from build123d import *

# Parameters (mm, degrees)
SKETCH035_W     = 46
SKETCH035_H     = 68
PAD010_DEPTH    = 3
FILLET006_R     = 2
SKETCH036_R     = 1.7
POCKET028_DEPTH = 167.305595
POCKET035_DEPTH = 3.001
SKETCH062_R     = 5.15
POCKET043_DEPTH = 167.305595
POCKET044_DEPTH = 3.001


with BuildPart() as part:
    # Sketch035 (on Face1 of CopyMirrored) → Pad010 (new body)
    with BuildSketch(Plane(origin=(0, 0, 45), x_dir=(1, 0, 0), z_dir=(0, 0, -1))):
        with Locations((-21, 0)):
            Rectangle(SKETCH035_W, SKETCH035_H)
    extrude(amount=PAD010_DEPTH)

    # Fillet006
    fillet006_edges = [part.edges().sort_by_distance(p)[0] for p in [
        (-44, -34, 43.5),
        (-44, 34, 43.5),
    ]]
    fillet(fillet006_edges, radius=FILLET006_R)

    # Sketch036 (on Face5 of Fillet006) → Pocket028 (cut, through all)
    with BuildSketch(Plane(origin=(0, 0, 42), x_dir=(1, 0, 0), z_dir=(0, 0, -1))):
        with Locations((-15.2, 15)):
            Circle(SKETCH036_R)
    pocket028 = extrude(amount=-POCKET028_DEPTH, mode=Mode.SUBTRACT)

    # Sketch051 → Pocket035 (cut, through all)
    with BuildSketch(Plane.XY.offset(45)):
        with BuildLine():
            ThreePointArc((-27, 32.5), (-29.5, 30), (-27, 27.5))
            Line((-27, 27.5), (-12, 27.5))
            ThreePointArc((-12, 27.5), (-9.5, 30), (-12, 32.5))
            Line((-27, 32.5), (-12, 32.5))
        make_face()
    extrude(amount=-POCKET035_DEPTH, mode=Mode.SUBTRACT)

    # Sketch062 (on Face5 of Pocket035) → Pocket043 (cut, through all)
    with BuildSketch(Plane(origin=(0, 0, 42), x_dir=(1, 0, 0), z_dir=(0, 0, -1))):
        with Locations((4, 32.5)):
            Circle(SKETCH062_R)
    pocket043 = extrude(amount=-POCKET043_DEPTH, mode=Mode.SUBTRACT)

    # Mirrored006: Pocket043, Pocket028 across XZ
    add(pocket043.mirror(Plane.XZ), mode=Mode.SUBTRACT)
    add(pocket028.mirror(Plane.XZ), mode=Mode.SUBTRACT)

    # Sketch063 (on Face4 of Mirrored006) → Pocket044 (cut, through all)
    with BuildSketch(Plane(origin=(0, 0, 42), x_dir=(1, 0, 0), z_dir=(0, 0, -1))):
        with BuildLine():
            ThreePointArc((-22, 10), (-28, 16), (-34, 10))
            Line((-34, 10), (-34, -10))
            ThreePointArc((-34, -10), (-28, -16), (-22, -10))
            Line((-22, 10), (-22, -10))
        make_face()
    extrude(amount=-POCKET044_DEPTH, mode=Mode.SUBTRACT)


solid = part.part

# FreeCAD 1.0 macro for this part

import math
import FreeCAD as App
import Part
import Sketcher
from FreeCAD import Vector
Q = App.Units.Quantity


def edges_at(feature, points):
    """Names of the edges that pass closest to the given points."""
    edges = feature.Shape.Edges
    near = lambda p: min(range(len(edges)), key=lambda i: edges[i].distToShape(Part.Vertex(*p))[0])
    return sorted({f"Edge{near(p) + 1}" for p in points})

doc = App.newDocument("Part")
body = doc.addObject("PartDesign::Body", "Body")

# Sketch on XY plane
sketch1 = body.newObject("Sketcher::SketchObject", "Sketch")
sketch1.AttachmentSupport = (doc.getObject("XY_Plane"), [""])
sketch1.MapMode = "FlatFace"
sketch1.AttachmentOffset = App.Placement(Vector(0, 0, 45), App.Rotation())
sketch1.addGeometry([
    Part.LineSegment(Vector(-44, -34, 0), Vector(-44, 34, 0)),
    Part.LineSegment(Vector(-44, 34, 0), Vector(2, 34, 0)),
    Part.LineSegment(Vector(2, 34, 0), Vector(2, -34, 0)),
    Part.LineSegment(Vector(2, -34, 0), Vector(-44, -34, 0)),
], False)
sketch1.addConstraint([
    Sketcher.Constraint("Coincident", 0, 2, 1, 1),
    Sketcher.Constraint("Coincident", 1, 2, 2, 1),
    Sketcher.Constraint("Coincident", 2, 2, 3, 1),
    Sketcher.Constraint("Coincident", 3, 2, 0, 1),
    Sketcher.Constraint("Vertical", 0),
    Sketcher.Constraint("Horizontal", 1),
    Sketcher.Constraint("Vertical", 2),
    Sketcher.Constraint("Horizontal", 3),
    Sketcher.Constraint("DistanceX", 1, 1, 1, 2, Q("46 mm")),
    Sketcher.Constraint("DistanceY", 0, 1, 0, 2, Q("68 mm")),
    Sketcher.Constraint("DistanceX", 0, 2, -1, 1, Q("44 mm")),
    Sketcher.Constraint("DistanceY", -1, 1, 0, 2, Q("34 mm")),
])
pad1 = body.newObject("PartDesign::Pad", "Pad")
pad1.Profile = sketch1
pad1.Length = 3
pad1.Reversed = True
doc.recompute()

fillet = body.newObject("PartDesign::Fillet", "Fillet")
fillet.Base = (pad1, edges_at(pad1, [(-44, -34, 43.5), (-44, 34, 43.5)]))
fillet.Radius = 2

# Sketch on XY plane
sketch2 = body.newObject("Sketcher::SketchObject", "Sketch001")
sketch2.AttachmentSupport = (doc.getObject("XY_Plane"), [""])
sketch2.MapMode = "FlatFace"
sketch2.AttachmentOffset = App.Placement(Vector(0, 0, 42), App.Rotation())
sketch2.addGeometry(Part.Circle(Vector(-15.2, -15, 0), Vector(0, 0, 1), 1.7), False)
sketch2.addConstraint([
    Sketcher.Constraint("Diameter", 0, Q("3.4 mm")),
    Sketcher.Constraint("DistanceY", 0, 3, -1, 1, Q("15 mm")),
    Sketcher.Constraint("DistanceX", 0, 3, -1, 1, Q("15.2 mm")),
])
pocket1 = body.newObject("PartDesign::Pocket", "Pocket")
pocket1.Profile = sketch2
pocket1.Type = "ThroughAll"
pocket1.Reversed = True

# Sketch on XY plane
sketch3 = body.newObject("Sketcher::SketchObject", "Sketch002")
sketch3.AttachmentSupport = (doc.getObject("XY_Plane"), [""])
sketch3.MapMode = "FlatFace"
sketch3.AttachmentOffset = App.Placement(Vector(0, 0, 45), App.Rotation())
sketch3.addGeometry([
    Part.ArcOfCircle(Part.Circle(Vector(-27, 30, 0), Vector(0, 0, 1), 2.5), math.radians(90), math.radians(270)),
    Part.LineSegment(Vector(-27, 27.5, 0), Vector(-12, 27.5, 0)),
    Part.ArcOfCircle(Part.Circle(Vector(-12, 30, 0), Vector(0, 0, 1), 2.5), math.radians(-90), math.radians(90)),
    Part.LineSegment(Vector(-12, 32.5, 0), Vector(-27, 32.5, 0)),
], False)
sketch3.addConstraint([
    Sketcher.Constraint("Tangent", 0, 2, 1, 1),
    Sketcher.Constraint("Tangent", 1, 2, 2, 1),
    Sketcher.Constraint("Tangent", 2, 2, 3, 1),
    Sketcher.Constraint("Tangent", 3, 2, 0, 1),
    Sketcher.Constraint("Horizontal", 1),
    Sketcher.Constraint("Horizontal", 3),
    Sketcher.Constraint("Radius", 0, Q("2.5 mm")),
    Sketcher.Constraint("DistanceX", 1, 1, 1, 2, Q("15 mm")),
    Sketcher.Constraint("DistanceX", 0, 3, -1, 1, Q("27 mm")),
    Sketcher.Constraint("DistanceY", -1, 1, 0, 3, Q("30 mm")),
])
pocket2 = body.newObject("PartDesign::Pocket", "Pocket001")
pocket2.Profile = sketch3
pocket2.Type = "ThroughAll"

# Sketch on XY plane
sketch4 = body.newObject("Sketcher::SketchObject", "Sketch003")
sketch4.AttachmentSupport = (doc.getObject("XY_Plane"), [""])
sketch4.MapMode = "FlatFace"
sketch4.AttachmentOffset = App.Placement(Vector(0, 0, 42), App.Rotation())
sketch4.addGeometry(Part.Circle(Vector(4, -32, 0), Vector(0, 0, 1), 5), False)
sketch4.addConstraint([
    Sketcher.Constraint("Diameter", 0, Q("10.3 mm")),
    Sketcher.Constraint("DistanceX", -1, 1, 0, 3, Q("4 mm")),
    Sketcher.Constraint("DistanceY", 0, 3, -1, 1, Q("32.5 mm")),
])
pocket3 = body.newObject("PartDesign::Pocket", "Pocket002")
pocket3.Profile = sketch4
pocket3.Type = "ThroughAll"
pocket3.Reversed = True
doc.recompute()

mirrored = body.newObject("PartDesign::Mirrored", "Mirrored")
mirrored.Originals = [pocket3, pocket1]
mirrored.MirrorPlane = (doc.getObject("XZ_Plane"), [""])
body.Tip = mirrored

# Sketch on XY plane
sketch5 = body.newObject("Sketcher::SketchObject", "Sketch004")
sketch5.AttachmentSupport = (doc.getObject("XY_Plane"), [""])
sketch5.MapMode = "FlatFace"
sketch5.AttachmentOffset = App.Placement(Vector(0, 0, 42), App.Rotation())
sketch5.addGeometry([
    Part.ArcOfCircle(Part.Circle(Vector(-28, -10, 0), Vector(0, 0, 1), 6), math.radians(180), math.radians(360)),
    Part.LineSegment(Vector(-34, -10, 0), Vector(-34, 10, 0)),
    Part.ArcOfCircle(Part.Circle(Vector(-28, 10, 0), Vector(0, 0, 1), 6), math.radians(0), math.radians(180)),
    Part.LineSegment(Vector(-22, 10, 0), Vector(-22, -10, 0)),
], False)
sketch5.addConstraint([
    Sketcher.Constraint("Tangent", 0, 1, 1, 1),
    Sketcher.Constraint("Tangent", 1, 2, 2, 2),
    Sketcher.Constraint("Tangent", 2, 1, 3, 1),
    Sketcher.Constraint("Tangent", 3, 2, 0, 2),
    Sketcher.Constraint("Vertical", 1),
    Sketcher.Constraint("Vertical", 3),
    Sketcher.Constraint("Radius", 0, Q("6 mm")),
    Sketcher.Constraint("DistanceY", 1, 1, 1, 2, Q("20 mm")),
    Sketcher.Constraint("DistanceX", 0, 3, -1, 1, Q("28 mm")),
    Sketcher.Constraint("DistanceY", 0, 3, -1, 1, Q("10 mm")),
])
pocket4 = body.newObject("PartDesign::Pocket", "Pocket003")
pocket4.Profile = sketch5
pocket4.Type = "ThroughAll"
pocket4.Reversed = True

doc.recompute()
